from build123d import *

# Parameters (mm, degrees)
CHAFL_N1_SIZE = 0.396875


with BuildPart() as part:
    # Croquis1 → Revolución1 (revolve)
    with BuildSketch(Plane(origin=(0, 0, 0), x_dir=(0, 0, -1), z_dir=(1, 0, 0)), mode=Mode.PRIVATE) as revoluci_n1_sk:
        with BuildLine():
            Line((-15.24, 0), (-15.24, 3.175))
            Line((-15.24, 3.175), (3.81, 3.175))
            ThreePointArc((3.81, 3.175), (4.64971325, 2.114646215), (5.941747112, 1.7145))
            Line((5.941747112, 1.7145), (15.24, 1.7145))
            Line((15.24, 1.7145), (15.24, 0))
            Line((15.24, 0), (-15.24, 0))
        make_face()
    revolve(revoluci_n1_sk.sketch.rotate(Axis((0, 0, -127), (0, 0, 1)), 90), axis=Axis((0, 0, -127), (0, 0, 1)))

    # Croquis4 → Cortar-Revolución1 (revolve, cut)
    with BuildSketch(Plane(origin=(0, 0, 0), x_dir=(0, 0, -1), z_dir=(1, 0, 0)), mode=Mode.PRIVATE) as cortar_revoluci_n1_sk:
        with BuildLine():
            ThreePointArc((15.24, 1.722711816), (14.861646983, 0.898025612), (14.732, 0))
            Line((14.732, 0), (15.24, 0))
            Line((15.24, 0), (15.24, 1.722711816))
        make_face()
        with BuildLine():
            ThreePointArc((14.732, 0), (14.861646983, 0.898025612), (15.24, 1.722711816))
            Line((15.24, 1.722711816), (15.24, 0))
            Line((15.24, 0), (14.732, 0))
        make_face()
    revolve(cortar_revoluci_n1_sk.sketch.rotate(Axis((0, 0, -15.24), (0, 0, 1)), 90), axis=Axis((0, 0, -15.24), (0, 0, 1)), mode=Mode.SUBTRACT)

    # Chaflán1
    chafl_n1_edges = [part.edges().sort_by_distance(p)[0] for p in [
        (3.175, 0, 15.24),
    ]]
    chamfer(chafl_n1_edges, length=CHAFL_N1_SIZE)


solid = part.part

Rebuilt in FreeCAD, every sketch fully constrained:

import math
import FreeCAD as App
import Part
import Sketcher
Q = App.Units.Quantity


def edges_at(feature, points):
    """Names of the edges that pass closest to the given points."""
    edges = feature.Shape.Edges
    near = lambda p: min(range(len(edges)), key=lambda i: edges[i].distToShape(Part.Vertex(*p))[0])
    return sorted({f"Edge{near(p) + 1}" for p in points})

doc = App.newDocument("Part")
body = doc.addObject("PartDesign::Body", "Body")

# Sketch on YZ plane
sketch1 = body.newObject("Sketcher::SketchObject", "Sketch")
sketch1.AttachmentSupport = (doc.getObject("YZ_Plane"), [""])
sketch1.MapMode = "FlatFace"
sketch1.addGeometry(Part.LineSegment(App.Vector(3.175, 15.24, 0), App.Vector(0, 15.24, 0)), False)
sketch1.addGeometry(Part.LineSegment(App.Vector(0, 15.24, 0), App.Vector(0, -15.24, 0)), False)
sketch1.addGeometry(Part.LineSegment(App.Vector(0, -15.24, 0), App.Vector(1.7145, -15.24, 0)), False)
sketch1.addGeometry(Part.LineSegment(App.Vector(1.7145, -15.24, 0), App.Vector(1.7145, -5.941747, 0)), False)
sketch1.addGeometry(Part.ArcOfCircle(Part.Circle(App.Vector(4.0005, -5.941747, 0), App.Vector(0, 0, 1), 2.286), math.radians(111.168449), math.radians(180)), False)
sketch1.addGeometry(Part.LineSegment(App.Vector(3.175, -3.81, 0), App.Vector(3.175, 15.24, 0)), False)
sketch1.addConstraint(Sketcher.Constraint("Coincident", 0, 2, 1, 1))
sketch1.addConstraint(Sketcher.Constraint("Coincident", 1, 2, 2, 1))
sketch1.addConstraint(Sketcher.Constraint("Coincident", 2, 2, 3, 1))
sketch1.addConstraint(Sketcher.Constraint("Tangent", 3, 2, 4, 2))
sketch1.addConstraint(Sketcher.Constraint("Coincident", 4, 1, 5, 1))
sketch1.addConstraint(Sketcher.Constraint("Coincident", 5, 2, 0, 1))
sketch1.addConstraint(Sketcher.Constraint("Horizontal", 0))
sketch1.addConstraint(Sketcher.Constraint("Vertical", 1))
sketch1.addConstraint(Sketcher.Constraint("Horizontal", 2))
sketch1.addConstraint(Sketcher.Constraint("Vertical", 3))
sketch1.addConstraint(Sketcher.Constraint("Vertical", 5))
sketch1.addConstraint(Sketcher.Constraint("Symmetric", 0, 2, 1, 2, -1, 1))
sketch1.addConstraint(Sketcher.Constraint("Radius", 4, Q("0.09 in")))
sketch1.addConstraint(Sketcher.Constraint("DistanceY", 1, 2, 1, 1, Q("1.2 in")))
sketch1.addConstraint(Sketcher.Constraint("DistanceY", 5, 1, 5, 2, Q("0.75 in")))
sketch1.addConstraint(Sketcher.Constraint("DistanceX", 0, 2, 0, 1, Q("0.125 in")))
sketch1.addConstraint(Sketcher.Constraint("DistanceX", 2, 1, 2, 2, Q("0.0675 in")))
revolution = body.newObject("PartDesign::Revolution", "Revolution")
revolution.Profile = sketch1
revolution.ReferenceAxis = (sketch1, ["V_Axis"])
revolution.Angle = 360

# Sketch on YZ plane
sketch2 = body.newObject("Sketcher::SketchObject", "Sketch001")
sketch2.AttachmentSupport = (doc.getObject("YZ_Plane"), [""])
sketch2.MapMode = "FlatFace"
sketch2.addGeometry(Part.ArcOfCircle(Part.Circle(App.Vector(0, -17.907, 0), App.Vector(0, 0, 1), 3.175), math.radians(57.14012), math.radians(90)), False)
sketch2.addGeometry(Part.LineSegment(App.Vector(0, -14.732, 0), App.Vector(0, -15.24, 0)), False)
sketch2.addGeometry(Part.LineSegment(App.Vector(0, -15.24, 0), App.Vector(1.722712, -15.24, 0)), False)
sketch2.addConstraint(Sketcher.Constraint("Coincident", 0, 2, 1, 1))
sketch2.addConstraint(Sketcher.Constraint("Coincident", 1, 2, 2, 1))
sketch2.addConstraint(Sketcher.Constraint("Coincident", 2, 2, 0, 1))
sketch2.addConstraint(Sketcher.Constraint("Vertical", 1))
sketch2.addConstraint(Sketcher.Constraint("Horizontal", 2))
sketch2.addConstraint(Sketcher.Constraint("PointOnObject", 0, 3, -2))
sketch2.addConstraint(Sketcher.Constraint("PointOnObject", 0, 2, -2))
sketch2.addConstraint(Sketcher.Constraint("Radius", 0, Q("0.125 in")))
sketch2.addConstraint(Sketcher.Constraint("DistanceY", 1, 2, 1, 1, Q("0.02 in")))
sketch2.addConstraint(Sketcher.Constraint("DistanceY", 1, 2, -1, 1, Q("0.6 in")))
groove = body.newObject("PartDesign::Groove", "Groove")
groove.Profile = sketch2
groove.ReferenceAxis = (sketch2, ["V_Axis"])
groove.Angle = 360
doc.recompute()

chamfer = body.newObject("PartDesign::Chamfer", "Chamfer")
chamfer.Base = (groove, edges_at(groove, [(3.175, 0, 15.24)]))
chamfer.Size = Q("0.015625 in")

doc.recompute()
